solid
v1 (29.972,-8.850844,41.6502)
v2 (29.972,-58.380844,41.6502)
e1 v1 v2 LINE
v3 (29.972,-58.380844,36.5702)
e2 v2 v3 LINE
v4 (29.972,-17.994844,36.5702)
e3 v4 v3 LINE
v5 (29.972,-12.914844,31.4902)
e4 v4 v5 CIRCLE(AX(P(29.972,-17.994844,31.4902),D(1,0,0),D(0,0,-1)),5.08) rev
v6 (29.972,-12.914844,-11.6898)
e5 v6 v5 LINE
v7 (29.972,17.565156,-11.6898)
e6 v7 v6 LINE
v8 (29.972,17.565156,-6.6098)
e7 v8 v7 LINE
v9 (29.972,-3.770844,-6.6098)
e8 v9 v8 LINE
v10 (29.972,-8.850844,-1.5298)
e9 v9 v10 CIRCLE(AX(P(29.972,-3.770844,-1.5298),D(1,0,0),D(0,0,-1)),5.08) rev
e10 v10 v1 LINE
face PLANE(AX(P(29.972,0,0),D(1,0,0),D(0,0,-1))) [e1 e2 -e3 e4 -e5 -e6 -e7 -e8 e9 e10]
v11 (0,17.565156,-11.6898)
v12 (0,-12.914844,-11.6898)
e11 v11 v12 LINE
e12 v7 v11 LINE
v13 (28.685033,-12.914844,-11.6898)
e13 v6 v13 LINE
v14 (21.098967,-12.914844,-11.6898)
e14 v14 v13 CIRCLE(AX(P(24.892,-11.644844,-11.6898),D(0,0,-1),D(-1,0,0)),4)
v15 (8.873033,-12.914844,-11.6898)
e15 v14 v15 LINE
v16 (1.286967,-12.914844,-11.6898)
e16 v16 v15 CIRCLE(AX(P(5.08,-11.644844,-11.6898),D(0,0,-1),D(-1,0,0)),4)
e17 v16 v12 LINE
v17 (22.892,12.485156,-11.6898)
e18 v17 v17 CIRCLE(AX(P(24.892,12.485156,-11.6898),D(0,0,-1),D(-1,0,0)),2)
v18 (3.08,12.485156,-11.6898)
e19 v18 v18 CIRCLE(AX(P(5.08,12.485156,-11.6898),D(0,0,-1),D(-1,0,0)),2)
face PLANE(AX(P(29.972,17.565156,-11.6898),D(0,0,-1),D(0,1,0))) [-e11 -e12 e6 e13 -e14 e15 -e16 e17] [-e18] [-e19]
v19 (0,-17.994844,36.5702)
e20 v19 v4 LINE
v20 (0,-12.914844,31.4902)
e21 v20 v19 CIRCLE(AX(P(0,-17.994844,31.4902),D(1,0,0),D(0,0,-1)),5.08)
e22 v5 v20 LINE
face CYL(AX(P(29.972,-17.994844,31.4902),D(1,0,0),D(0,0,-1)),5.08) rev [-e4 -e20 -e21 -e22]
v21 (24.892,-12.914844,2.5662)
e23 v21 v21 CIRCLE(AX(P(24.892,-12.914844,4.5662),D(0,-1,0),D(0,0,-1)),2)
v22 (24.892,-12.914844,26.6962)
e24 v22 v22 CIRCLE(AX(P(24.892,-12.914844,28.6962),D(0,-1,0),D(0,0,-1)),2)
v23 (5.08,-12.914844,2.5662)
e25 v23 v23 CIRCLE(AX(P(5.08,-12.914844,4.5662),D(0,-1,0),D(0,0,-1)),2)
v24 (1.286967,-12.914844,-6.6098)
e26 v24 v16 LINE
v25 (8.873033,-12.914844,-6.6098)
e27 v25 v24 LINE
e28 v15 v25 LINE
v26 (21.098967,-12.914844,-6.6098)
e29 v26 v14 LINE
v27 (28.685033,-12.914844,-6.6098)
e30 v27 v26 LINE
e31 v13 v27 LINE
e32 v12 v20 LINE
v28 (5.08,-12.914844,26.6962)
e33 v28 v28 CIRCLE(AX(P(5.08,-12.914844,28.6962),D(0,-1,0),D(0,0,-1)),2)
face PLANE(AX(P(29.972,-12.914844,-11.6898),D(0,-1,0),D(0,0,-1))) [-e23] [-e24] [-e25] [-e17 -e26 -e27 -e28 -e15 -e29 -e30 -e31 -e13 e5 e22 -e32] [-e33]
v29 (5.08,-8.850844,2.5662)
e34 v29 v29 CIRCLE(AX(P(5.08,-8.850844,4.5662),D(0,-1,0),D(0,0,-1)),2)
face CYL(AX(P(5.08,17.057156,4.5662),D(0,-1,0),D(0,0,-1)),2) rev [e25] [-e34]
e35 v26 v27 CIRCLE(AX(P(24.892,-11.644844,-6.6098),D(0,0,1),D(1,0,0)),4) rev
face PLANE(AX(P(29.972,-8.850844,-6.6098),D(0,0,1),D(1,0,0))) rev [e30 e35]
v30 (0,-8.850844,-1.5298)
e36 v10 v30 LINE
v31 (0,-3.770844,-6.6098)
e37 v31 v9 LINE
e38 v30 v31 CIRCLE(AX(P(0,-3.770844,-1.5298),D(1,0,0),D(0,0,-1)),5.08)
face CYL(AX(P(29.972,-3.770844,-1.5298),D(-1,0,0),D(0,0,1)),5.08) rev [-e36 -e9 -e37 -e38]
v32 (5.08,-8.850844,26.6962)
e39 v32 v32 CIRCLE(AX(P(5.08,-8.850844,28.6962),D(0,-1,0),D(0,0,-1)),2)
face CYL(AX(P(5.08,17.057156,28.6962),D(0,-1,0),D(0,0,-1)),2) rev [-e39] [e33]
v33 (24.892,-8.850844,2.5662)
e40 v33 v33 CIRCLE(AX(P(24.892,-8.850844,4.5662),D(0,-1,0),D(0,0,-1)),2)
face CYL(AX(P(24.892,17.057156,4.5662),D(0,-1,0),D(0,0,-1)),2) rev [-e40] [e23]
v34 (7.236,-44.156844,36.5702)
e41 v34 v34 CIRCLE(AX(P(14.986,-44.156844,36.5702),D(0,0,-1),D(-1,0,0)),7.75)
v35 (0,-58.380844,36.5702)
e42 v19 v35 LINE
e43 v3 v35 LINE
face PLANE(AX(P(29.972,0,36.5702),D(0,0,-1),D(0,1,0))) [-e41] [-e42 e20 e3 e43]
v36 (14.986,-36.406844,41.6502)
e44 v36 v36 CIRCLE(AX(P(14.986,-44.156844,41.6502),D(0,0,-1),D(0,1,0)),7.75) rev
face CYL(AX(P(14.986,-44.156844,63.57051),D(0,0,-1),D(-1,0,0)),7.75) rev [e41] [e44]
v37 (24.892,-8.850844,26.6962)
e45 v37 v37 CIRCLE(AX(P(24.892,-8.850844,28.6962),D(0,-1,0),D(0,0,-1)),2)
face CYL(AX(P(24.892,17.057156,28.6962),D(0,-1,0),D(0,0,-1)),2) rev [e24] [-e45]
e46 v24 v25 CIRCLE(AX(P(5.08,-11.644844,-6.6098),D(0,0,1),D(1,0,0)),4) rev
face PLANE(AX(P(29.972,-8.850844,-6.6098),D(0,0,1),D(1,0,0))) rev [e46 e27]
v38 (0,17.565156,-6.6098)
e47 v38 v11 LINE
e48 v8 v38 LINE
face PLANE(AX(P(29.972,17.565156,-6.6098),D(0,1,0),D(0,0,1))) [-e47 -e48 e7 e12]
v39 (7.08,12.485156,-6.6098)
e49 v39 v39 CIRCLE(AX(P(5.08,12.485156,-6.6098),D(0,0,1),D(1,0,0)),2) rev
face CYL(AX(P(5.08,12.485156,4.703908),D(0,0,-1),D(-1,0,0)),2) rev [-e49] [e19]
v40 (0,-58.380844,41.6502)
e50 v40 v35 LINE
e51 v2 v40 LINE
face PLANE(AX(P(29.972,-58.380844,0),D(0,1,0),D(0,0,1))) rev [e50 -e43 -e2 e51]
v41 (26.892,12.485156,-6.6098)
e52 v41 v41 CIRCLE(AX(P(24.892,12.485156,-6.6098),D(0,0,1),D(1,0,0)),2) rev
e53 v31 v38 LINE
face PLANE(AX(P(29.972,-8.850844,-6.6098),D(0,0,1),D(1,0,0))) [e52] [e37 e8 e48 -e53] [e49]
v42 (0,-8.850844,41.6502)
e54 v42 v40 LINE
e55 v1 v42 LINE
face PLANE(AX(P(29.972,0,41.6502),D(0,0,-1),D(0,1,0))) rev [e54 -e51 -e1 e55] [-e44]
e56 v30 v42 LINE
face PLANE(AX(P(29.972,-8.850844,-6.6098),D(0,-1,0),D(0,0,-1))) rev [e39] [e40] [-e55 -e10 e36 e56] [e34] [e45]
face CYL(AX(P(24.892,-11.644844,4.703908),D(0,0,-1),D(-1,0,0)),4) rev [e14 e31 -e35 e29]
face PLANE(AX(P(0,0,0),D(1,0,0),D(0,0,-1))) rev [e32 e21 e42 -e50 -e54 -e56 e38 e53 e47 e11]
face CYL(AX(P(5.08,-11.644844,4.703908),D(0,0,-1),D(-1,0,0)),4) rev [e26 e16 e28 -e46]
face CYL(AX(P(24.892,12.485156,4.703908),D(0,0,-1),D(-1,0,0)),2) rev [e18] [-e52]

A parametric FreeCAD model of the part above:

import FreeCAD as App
import Part
import Sketcher
Q = App.Units.Quantity


def edges_at(feature, points):
    """Names of the edges that pass closest to the given points."""
    edges = feature.Shape.Edges
    near = lambda p: min(range(len(edges)), key=lambda i: edges[i].distToShape(Part.Vertex(*p))[0])
    return sorted({f"Edge{near(p) + 1}" for p in points})

doc = App.newDocument("Part")
params = doc.addObject("Spreadsheet::Sheet", "Params")
for row, (alias, value) in enumerate([
    ("sketch1_width", "1.2 in"),
    ("sketch1_height", "1.9 in"),
    ("sketch1_height2", "0.2 in"),
    ("sketch1_width2", "1.04 in"),
    ("sketch1_width3", "1.95 in"),
    ("pad1_length", "1.18 in"),
    ("fillet_radius", "0.2 in"),
    ("pocket1_length", "0.2 in"),
    ("pocket2_length", "1.18 in"),
    ("pocket3_length", "0.2 in"),
], start=1):
    params.set(f"A{row}", alias)
    params.set(f"B{row}", "=" + value)
    params.setAlias(f"B{row}", alias)

body = doc.addObject("PartDesign::Body", "Body")

# Sketch on YZ plane
sketch1 = body.newObject("Sketcher::SketchObject", "Sketch")
sketch1.AttachmentSupport = (doc.getObject("YZ_Plane"), [""])
sketch1.MapMode = "FlatFace"
sketch1.addGeometry([
    Part.LineSegment(App.Vector(17.565156, -6.6098, 0), App.Vector(-8.850844, -6.6098, 0)),  # 0
    Part.LineSegment(App.Vector(-8.850844, -6.6098, 0), App.Vector(-8.850844, 41.6502, 0)),  # 1
    Part.LineSegment(App.Vector(-8.850844, 41.6502, 0), App.Vector(-58.380844, 41.6502, 0)),  # 2
    Part.LineSegment(App.Vector(-58.380844, 41.6502, 0), App.Vector(-58.380844, 36.5702, 0)),  # 3
    Part.LineSegment(App.Vector(-58.380844, 36.5702, 0), App.Vector(-12.914844, 36.5702, 0)),  # 4
    Part.LineSegment(App.Vector(-12.914844, 36.5702, 0), App.Vector(-12.914844, -11.6898, 0)),  # 5
    Part.LineSegment(App.Vector(-12.914844, -11.6898, 0), App.Vector(17.565156, -11.6898, 0)),  # 6
    Part.LineSegment(App.Vector(17.565156, -11.6898, 0), App.Vector(17.565156, -6.6098, 0)),  # 7
], False)
sketch1.addConstraint([
    Sketcher.Constraint("Coincident", 0, 2, 1, 1),
    Sketcher.Constraint("Coincident", 1, 2, 2, 1),
    Sketcher.Constraint("Coincident", 2, 2, 3, 1),
    Sketcher.Constraint("Coincident", 3, 2, 4, 1),
    Sketcher.Constraint("Coincident", 4, 2, 5, 1),
    Sketcher.Constraint("Coincident", 5, 2, 6, 1),
    Sketcher.Constraint("Coincident", 6, 2, 7, 1),
    Sketcher.Constraint("Coincident", 7, 2, 0, 1),
    Sketcher.Constraint("Horizontal", 0),
    Sketcher.Constraint("Vertical", 1),
    Sketcher.Constraint("Horizontal", 2),
    Sketcher.Constraint("Vertical", 3),
    Sketcher.Constraint("Horizontal", 4),
    Sketcher.Constraint("Vertical", 5),
    Sketcher.Constraint("Horizontal", 6),
    Sketcher.Constraint("Vertical", 7),
    Sketcher.Constraint("Equal", 1, 5),
    Sketcher.Constraint("DistanceX", 6, 1, 6, 2, Q("1.2 in")),
    Sketcher.Constraint("DistanceY", 1, 1, 1, 2, Q("1.9 in")),
    Sketcher.Constraint("DistanceY", 3, 2, 3, 1, Q("0.2 in")),
    Sketcher.Constraint("DistanceX", 0, 2, 0, 1, Q("1.04 in")),
    Sketcher.Constraint("DistanceX", 2, 2, 2, 1, Q("1.95 in")),
    Sketcher.Constraint("DistanceY", 0, 2, -1, 1, 6.6098),
    Sketcher.Constraint("DistanceX", 0, 2, -1, 1, 8.850844),
])
sketch1.setExpression("Constraints[17]", "Params.sketch1_width")
sketch1.setExpression("Constraints[18]", "Params.sketch1_height")
sketch1.setExpression("Constraints[19]", "Params.sketch1_height2")
sketch1.setExpression("Constraints[20]", "Params.sketch1_width2")
sketch1.setExpression("Constraints[21]", "Params.sketch1_width3")
pad1 = body.newObject("PartDesign::Pad", "Pad")
pad1.Profile = sketch1
pad1.setExpression("Length", "Params.pad1_length")
doc.recompute()

fillet = body.newObject("PartDesign::Fillet", "Fillet")
fillet.Base = (pad1, edges_at(pad1, [(14.986, -8.851, -6.61), (14.986, -12.915, 36.57)]))
fillet.setExpression("Radius", "Params.fillet_radius")

# Sketch on XY plane
sketch2 = body.newObject("Sketcher::SketchObject", "Sketch001")
sketch2.AttachmentSupport = (doc.getObject("XY_Plane"), [""])
sketch2.MapMode = "FlatFace"
sketch2.AttachmentOffset = App.Placement(App.Vector(0, 0, -11.6898), App.Rotation())
sketch2.addGeometry([
    Part.Circle(App.Vector(24.892, 12.485156, 0), App.Vector(0, 0, 1), 2),
    Part.Circle(App.Vector(5.08, 12.485156, 0), App.Vector(0, 0, 1), 2),
    Part.Circle(App.Vector(5.08, -11.644844, 0), App.Vector(0, 0, 1), 4),
    Part.Circle(App.Vector(24.892, -11.644844, 0), App.Vector(0, 0, 1), 4),
], False)
sketch2.addConstraint([
    Sketcher.Constraint("Equal", 0, 1),
    Sketcher.Constraint("Equal", 2, 3),
    Sketcher.Constraint("Horizontal", 0, 3, 1, 3),
    Sketcher.Constraint("Horizontal", 2, 3, 3, 3),
    Sketcher.Constraint("Vertical", 1, 3, 2, 3),
    Sketcher.Constraint("Vertical", 0, 3, 3, 3),
    Sketcher.Constraint("DistanceX", -1, 1, 1, 3, Q("0.2 in")),
    Sketcher.Constraint("Diameter", 0, 4.0),
    Sketcher.Constraint("Diameter", 2, 8.0),
    Sketcher.Constraint("DistanceX", -1, 1, 0, 3, Q("0.98 in")),
    Sketcher.Constraint("DistanceY", 2, 3, 1, 3, Q("0.95 in")),
    Sketcher.Constraint("DistanceY", -1, 1, 0, 3, 12.485156),
])
pocket1 = body.newObject("PartDesign::Pocket", "Pocket")
pocket1.Profile = sketch2
pocket1.setExpression("Length", "Params.pocket1_length")
pocket1.Reversed = True

# Sketch on XZ plane
sketch3 = body.newObject("Sketcher::SketchObject", "Sketch002")
sketch3.AttachmentSupport = (doc.getObject("XZ_Plane"), [""])
sketch3.MapMode = "FlatFace"
sketch3.AttachmentOffset = App.Placement(App.Vector(0, 0, 12.914844), App.Rotation())
sketch3.addGeometry([
    Part.Circle(App.Vector(24.892, 4.5662, 0), App.Vector(0, 0, 1), 2),
    Part.Circle(App.Vector(5.08, 4.5662, 0), App.Vector(0, 0, 1), 2),
    Part.Circle(App.Vector(24.892, 28.6962, 0), App.Vector(0, 0, 1), 2),
    Part.Circle(App.Vector(5.08, 28.6962, 0), App.Vector(0, 0, 1), 2),
], False)
sketch3.addConstraint([
    Sketcher.Constraint("Equal", 0, 1),
    Sketcher.Constraint("Equal", 1, 2),
    Sketcher.Constraint("Equal", 2, 3),
    Sketcher.Constraint("Horizontal", 0, 3, 1, 3),
    Sketcher.Constraint("Horizontal", 2, 3, 3, 3),
    Sketcher.Constraint("Vertical", 0, 3, 2, 3),
    Sketcher.Constraint("Vertical", 1, 3, 3, 3),
    Sketcher.Constraint("DistanceX", -1, 1, 1, 3, Q("0.2 in")),
    Sketcher.Constraint("Diameter", 0, 4.0),
    Sketcher.Constraint("DistanceX", -1, 1, 0, 3, Q("0.98 in")),
    Sketcher.Constraint("DistanceY", 0, 3, 2, 3, Q("0.95 in")),
    Sketcher.Constraint("DistanceY", -1, 1, 0, 3, 4.5662),
])
pocket2 = body.newObject("PartDesign::Pocket", "Pocket001")
pocket2.Profile = sketch3
pocket2.setExpression("Length", "Params.pocket2_length")

# Sketch on XY plane
sketch4 = body.newObject("Sketcher::SketchObject", "Sketch003")
sketch4.AttachmentSupport = (doc.getObject("XY_Plane"), [""])
sketch4.MapMode = "FlatFace"
sketch4.AttachmentOffset = App.Placement(App.Vector(0, 0, 36.5702), App.Rotation())
sketch4.addGeometry(Part.Circle(App.Vector(14.986, -44.156844, 0), App.Vector(0, 0, 1), 7.75), False)
sketch4.addConstraint([
    Sketcher.Constraint("Diameter", 0, 15.5),
    Sketcher.Constraint("DistanceX", -1, 1, 0, 3, Q("0.59 in")),
    Sketcher.Constraint("DistanceY", 0, 3, -1, 1, 44.156844),
])
pocket3 = body.newObject("PartDesign::Pocket", "Pocket002")
pocket3.Profile = sketch4
pocket3.setExpression("Length", "Params.pocket3_length")
pocket3.Reversed = True

doc.recompute()
